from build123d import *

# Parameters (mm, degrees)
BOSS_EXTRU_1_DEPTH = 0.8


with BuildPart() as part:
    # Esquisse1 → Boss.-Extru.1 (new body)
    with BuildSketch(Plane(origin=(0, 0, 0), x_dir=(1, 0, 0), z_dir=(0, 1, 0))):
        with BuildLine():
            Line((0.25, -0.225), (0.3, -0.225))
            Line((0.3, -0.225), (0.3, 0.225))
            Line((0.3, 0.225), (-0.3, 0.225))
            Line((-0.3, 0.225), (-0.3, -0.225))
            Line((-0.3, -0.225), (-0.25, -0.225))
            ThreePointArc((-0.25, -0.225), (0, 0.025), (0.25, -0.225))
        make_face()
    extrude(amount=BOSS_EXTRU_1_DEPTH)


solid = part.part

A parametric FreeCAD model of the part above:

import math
import FreeCAD as App
import Part
import Sketcher
from FreeCAD import Vector

doc = App.newDocument("Part")
body = doc.addObject("PartDesign::Body", "Body")

sketch1 = doc.addObject("Sketcher::SketchObject", "Sketch")
body.addObject(sketch1)
sketch1.AttachmentSupport = (doc.XZ_Plane, [""])
sketch1.MapMode = "FlatFace"
sketch1.addGeometry(Part.LineSegment(Vector(0.25, 0.23, 0), Vector(0.3, 0.23, 0)), False)
sketch1.addGeometry(Part.LineSegment(Vector(0.3, 0.23, 0), Vector(0.3, -0.23, 0)), False)
sketch1.addGeometry(Part.LineSegment(Vector(0.3, -0.23, 0), Vector(-0.3, -0.23, 0)), False)
sketch1.addGeometry(Part.LineSegment(Vector(-0.3, -0.23, 0), Vector(-0.3, 0.23, 0)), False)
sketch1.addGeometry(Part.LineSegment(Vector(-0.3, 0.23, 0), Vector(-0.25, 0.23, 0)), False)
sketch1.addGeometry(Part.ArcOfCircle(Part.Circle(Vector(0, 0.23, 0), Vector(0, 0, 1), 0.25), math.radians(180), math.radians(360)), False)
sketch1.addConstraint(Sketcher.Constraint("Coincident", 0, 2, 1, 1))
sketch1.addConstraint(Sketcher.Constraint("Coincident", 1, 2, 2, 1))
sketch1.addConstraint(Sketcher.Constraint("Coincident", 2, 2, 3, 1))
sketch1.addConstraint(Sketcher.Constraint("Coincident", 3, 2, 4, 1))
sketch1.addConstraint(Sketcher.Constraint("Coincident", 4, 2, 5, 1))
sketch1.addConstraint(Sketcher.Constraint("Coincident", 5, 2, 0, 1))
sketch1.addConstraint(Sketcher.Constraint("Horizontal", 0))
sketch1.addConstraint(Sketcher.Constraint("Vertical", 1))
sketch1.addConstraint(Sketcher.Constraint("Horizontal", 2))
sketch1.addConstraint(Sketcher.Constraint("Vertical", 3))
sketch1.addConstraint(Sketcher.Constraint("Horizontal", 4))
sketch1.addConstraint(Sketcher.Constraint("Symmetric", 0, 2, 2, 2, -1, 1))
sketch1.addConstraint(Sketcher.Constraint("Symmetric", 4, 2, 5, 2, -2))
sketch1.addConstraint(Sketcher.Constraint("Horizontal", 5, 3, 0, 2))
sketch1.addConstraint(Sketcher.Constraint("Radius", 5, 0.25))
sketch1.addConstraint(Sketcher.Constraint("DistanceX", 2, 2, 2, 1, 0.6))
sketch1.addConstraint(Sketcher.Constraint("DistanceY", 1, 2, 1, 1, 0.45))
pad1 = doc.addObject("PartDesign::Pad", "Pad")
body.addObject(pad1)
pad1.Profile = sketch1
pad1.Length = 0.8
pad1.Reversed = True

doc.recompute()
